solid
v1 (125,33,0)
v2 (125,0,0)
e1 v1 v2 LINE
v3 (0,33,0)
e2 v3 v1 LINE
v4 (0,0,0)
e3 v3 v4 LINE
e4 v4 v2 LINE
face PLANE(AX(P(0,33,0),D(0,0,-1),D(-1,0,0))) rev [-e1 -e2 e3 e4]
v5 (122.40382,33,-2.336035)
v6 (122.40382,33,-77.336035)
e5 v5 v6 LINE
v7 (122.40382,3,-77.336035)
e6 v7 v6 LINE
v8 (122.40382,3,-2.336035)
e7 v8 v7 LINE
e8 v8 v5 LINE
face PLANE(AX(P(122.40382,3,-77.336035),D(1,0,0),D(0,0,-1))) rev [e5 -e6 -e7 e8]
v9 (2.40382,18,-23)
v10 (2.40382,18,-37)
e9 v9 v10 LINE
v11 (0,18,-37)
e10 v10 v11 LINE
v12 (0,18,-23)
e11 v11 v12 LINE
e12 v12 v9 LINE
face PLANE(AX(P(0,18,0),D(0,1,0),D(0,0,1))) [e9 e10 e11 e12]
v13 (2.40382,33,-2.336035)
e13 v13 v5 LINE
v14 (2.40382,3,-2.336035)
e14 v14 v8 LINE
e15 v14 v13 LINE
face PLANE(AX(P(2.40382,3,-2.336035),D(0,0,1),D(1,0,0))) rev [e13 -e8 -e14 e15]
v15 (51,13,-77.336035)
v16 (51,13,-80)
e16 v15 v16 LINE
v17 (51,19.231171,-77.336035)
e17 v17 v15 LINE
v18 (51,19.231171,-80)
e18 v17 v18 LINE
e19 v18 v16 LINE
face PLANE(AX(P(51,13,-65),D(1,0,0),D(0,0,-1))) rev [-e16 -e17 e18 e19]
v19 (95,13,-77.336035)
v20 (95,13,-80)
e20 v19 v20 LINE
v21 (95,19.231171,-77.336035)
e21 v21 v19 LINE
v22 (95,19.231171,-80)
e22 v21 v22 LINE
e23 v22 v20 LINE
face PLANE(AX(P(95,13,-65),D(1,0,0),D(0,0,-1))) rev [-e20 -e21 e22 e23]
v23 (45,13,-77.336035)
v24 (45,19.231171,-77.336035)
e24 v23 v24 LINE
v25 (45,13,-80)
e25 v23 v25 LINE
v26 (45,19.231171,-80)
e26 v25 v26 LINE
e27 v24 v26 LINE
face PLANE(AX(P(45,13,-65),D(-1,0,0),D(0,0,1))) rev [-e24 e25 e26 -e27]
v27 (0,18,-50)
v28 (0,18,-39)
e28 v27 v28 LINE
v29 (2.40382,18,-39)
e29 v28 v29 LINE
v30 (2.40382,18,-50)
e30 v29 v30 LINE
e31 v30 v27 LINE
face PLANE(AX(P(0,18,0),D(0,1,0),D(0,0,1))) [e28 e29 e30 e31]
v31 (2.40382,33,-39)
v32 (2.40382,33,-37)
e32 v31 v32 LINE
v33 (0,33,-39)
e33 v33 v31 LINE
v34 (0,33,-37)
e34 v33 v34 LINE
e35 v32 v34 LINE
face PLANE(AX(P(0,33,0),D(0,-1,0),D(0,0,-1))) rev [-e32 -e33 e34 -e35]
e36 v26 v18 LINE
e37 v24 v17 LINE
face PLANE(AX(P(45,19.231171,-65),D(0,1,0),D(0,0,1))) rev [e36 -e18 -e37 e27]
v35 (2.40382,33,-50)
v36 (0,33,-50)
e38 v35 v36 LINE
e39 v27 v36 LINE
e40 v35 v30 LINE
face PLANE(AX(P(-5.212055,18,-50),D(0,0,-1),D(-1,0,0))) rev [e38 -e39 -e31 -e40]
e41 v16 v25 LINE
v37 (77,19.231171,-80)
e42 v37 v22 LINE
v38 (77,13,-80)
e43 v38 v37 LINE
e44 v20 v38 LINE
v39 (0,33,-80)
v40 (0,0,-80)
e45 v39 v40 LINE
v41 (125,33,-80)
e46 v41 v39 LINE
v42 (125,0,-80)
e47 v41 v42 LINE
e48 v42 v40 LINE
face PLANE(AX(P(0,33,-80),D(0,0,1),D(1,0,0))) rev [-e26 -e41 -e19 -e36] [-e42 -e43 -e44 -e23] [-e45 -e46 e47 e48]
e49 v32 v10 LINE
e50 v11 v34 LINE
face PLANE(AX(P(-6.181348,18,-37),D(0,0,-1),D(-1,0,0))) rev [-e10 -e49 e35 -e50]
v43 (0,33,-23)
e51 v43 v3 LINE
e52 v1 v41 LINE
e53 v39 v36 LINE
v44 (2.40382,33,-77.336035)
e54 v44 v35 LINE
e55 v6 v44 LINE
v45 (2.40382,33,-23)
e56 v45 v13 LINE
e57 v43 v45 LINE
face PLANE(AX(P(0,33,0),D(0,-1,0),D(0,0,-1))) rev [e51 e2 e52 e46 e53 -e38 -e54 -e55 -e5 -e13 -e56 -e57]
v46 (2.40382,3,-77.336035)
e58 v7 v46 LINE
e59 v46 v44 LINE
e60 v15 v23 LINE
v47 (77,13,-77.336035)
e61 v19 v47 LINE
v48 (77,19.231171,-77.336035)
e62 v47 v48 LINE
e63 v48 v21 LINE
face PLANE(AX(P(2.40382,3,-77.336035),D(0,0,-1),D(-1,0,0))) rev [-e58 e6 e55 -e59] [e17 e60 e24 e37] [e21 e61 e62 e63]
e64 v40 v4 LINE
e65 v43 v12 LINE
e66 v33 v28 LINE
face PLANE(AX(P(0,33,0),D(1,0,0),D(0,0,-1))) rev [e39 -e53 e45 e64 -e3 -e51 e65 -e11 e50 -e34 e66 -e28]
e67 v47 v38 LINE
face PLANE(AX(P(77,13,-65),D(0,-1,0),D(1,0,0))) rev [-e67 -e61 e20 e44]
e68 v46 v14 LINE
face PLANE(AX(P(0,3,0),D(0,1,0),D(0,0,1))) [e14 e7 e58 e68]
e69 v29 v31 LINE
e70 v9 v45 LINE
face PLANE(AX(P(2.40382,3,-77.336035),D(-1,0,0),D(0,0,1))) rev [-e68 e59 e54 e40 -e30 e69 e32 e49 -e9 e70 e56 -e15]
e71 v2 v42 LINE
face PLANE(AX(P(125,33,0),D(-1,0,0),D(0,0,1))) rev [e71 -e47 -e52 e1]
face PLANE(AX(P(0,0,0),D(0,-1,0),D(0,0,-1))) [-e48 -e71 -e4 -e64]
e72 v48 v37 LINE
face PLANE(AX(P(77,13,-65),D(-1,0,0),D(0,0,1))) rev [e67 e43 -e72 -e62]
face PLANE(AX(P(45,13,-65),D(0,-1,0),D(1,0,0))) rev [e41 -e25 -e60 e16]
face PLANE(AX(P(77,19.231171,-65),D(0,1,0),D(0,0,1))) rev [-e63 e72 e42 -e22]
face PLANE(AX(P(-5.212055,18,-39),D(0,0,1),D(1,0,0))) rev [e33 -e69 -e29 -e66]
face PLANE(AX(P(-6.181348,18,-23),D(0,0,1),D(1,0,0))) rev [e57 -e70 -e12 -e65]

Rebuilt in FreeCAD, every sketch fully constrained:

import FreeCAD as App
import Part
import Sketcher

V = App.Vector
Q = App.Units.Quantity

doc = App.newDocument("Part")
body = doc.addObject("PartDesign::Body", "Body")

# Sketch on XZ plane
sketch1 = body.newObject("Sketcher::SketchObject", "Sketch")
sketch1.AttachmentSupport = (doc.getObject("XZ_Plane"), [""])
sketch1.MapMode = "FlatFace"
sketch1.addGeometry([
    Part.LineSegment(V(0, -80, 0), V(0, 0, 0)),
    Part.LineSegment(V(0, 0, 0), V(125, 0, 0)),
    Part.LineSegment(V(125, 0, 0), V(125, -80, 0)),
    Part.LineSegment(V(125, -80, 0), V(0, -80, 0)),
], False)
sketch1.addConstraint([
    Sketcher.Constraint("Coincident", 0, 2, 1, 1),
    Sketcher.Constraint("Coincident", 1, 2, 2, 1),
    Sketcher.Constraint("Coincident", 2, 2, 3, 1),
    Sketcher.Constraint("Coincident", 3, 2, 0, 1),
    Sketcher.Constraint("Vertical", 0),
    Sketcher.Constraint("Horizontal", 1),
    Sketcher.Constraint("Vertical", 2),
    Sketcher.Constraint("Horizontal", 3),
    Sketcher.Constraint("Coincident", 0, 2, -1, 1),
    Sketcher.Constraint("DistanceX", 1, 1, 1, 2, Q("125 mm")),
    Sketcher.Constraint("DistanceY", 0, 1, 0, 2, Q("80 mm")),
])
pad1 = body.newObject("PartDesign::Pad", "Pad")
pad1.Profile = sketch1
pad1.Length = 33
pad1.Reversed = True

# Sketch on XZ plane
sketch2 = body.newObject("Sketcher::SketchObject", "Sketch001")
sketch2.AttachmentSupport = (doc.getObject("XZ_Plane"), [""])
sketch2.MapMode = "FlatFace"
sketch2.AttachmentOffset = App.Placement(V(0, 0, -33), App.Rotation())
sketch2.addGeometry([
    Part.LineSegment(V(2, -77, 0), V(2, -2, 0)),
    Part.LineSegment(V(2, -2, 0), V(122, -2, 0)),
    Part.LineSegment(V(122, -2, 0), V(122, -77, 0)),
    Part.LineSegment(V(122, -77, 0), V(2, -77, 0)),
], False)
sketch2.addConstraint([
    Sketcher.Constraint("Coincident", 0, 2, 1, 1),
    Sketcher.Constraint("Coincident", 1, 2, 2, 1),
    Sketcher.Constraint("Coincident", 2, 2, 3, 1),
    Sketcher.Constraint("Coincident", 3, 2, 0, 1),
    Sketcher.Constraint("Vertical", 0),
    Sketcher.Constraint("Horizontal", 1),
    Sketcher.Constraint("Vertical", 2),
    Sketcher.Constraint("Horizontal", 3),
    Sketcher.Constraint("DistanceX", 1, 1, 1, 2, Q("120 mm")),
    Sketcher.Constraint("DistanceY", 0, 1, 0, 2, Q("75 mm")),
    Sketcher.Constraint("DistanceX", -1, 1, 0, 2, Q("2.40382 mm")),
    Sketcher.Constraint("DistanceY", 0, 2, -1, 1, Q("2.336035 mm")),
])
pocket1 = body.newObject("PartDesign::Pocket", "Pocket")
pocket1.Profile = sketch2
pocket1.Length = 30
pocket1.Reversed = True

# Sketch on XZ plane
sketch3 = body.newObject("Sketcher::SketchObject", "Sketch002")
sketch3.AttachmentSupport = (doc.getObject("XZ_Plane"), [""])
sketch3.MapMode = "FlatFace"
sketch3.AttachmentOffset = App.Placement(V(0, 0, -33), App.Rotation())
sketch3.addGeometry([
    Part.LineSegment(V(-6, -37, 0), V(-6, -23, 0)),  # 0
    Part.LineSegment(V(-6, -23, 0), V(8, -23, 0)),  # 1
    Part.LineSegment(V(8, -23, 0), V(8, -37, 0)),  # 2
    Part.LineSegment(V(8, -37, 0), V(-6, -37, 0)),  # 3
    Part.LineSegment(V(-5, -50, 0), V(-5, -39, 0)),  # 4
    Part.LineSegment(V(-5, -39, 0), V(8, -39, 0)),  # 5
    Part.LineSegment(V(8, -39, 0), V(8, -50, 0)),  # 6
    Part.LineSegment(V(8, -50, 0), V(-5, -50, 0)),  # 7
], False)
sketch3.addConstraint([
    Sketcher.Constraint("Coincident", 0, 2, 1, 1),
    Sketcher.Constraint("Coincident", 1, 2, 2, 1),
    Sketcher.Constraint("Coincident", 2, 2, 3, 1),
    Sketcher.Constraint("Coincident", 3, 2, 0, 1),
    Sketcher.Constraint("Coincident", 4, 2, 5, 1),
    Sketcher.Constraint("Coincident", 5, 2, 6, 1),
    Sketcher.Constraint("Coincident", 6, 2, 7, 1),
    Sketcher.Constraint("Coincident", 7, 2, 4, 1),
    Sketcher.Constraint("Vertical", 0),
    Sketcher.Constraint("Horizontal", 1),
    Sketcher.Constraint("Vertical", 2),
    Sketcher.Constraint("Horizontal", 3),
    Sketcher.Constraint("Vertical", 4),
    Sketcher.Constraint("Horizontal", 5),
    Sketcher.Constraint("Vertical", 6),
    Sketcher.Constraint("Horizontal", 7),
    Sketcher.Constraint("Vertical", 2, 2, 5, 2),
    Sketcher.Constraint("DistanceY", 0, 1, 0, 2, Q("14 mm")),
    Sketcher.Constraint("DistanceY", 4, 1, 4, 2, Q("11 mm")),
    Sketcher.Constraint("DistanceY", 0, 2, -1, 1, Q("23 mm")),
    Sketcher.Constraint("DistanceY", 4, 2, -1, 1, Q("39 mm")),
    Sketcher.Constraint("DistanceX", 1, 1, 1, 2, Q("14.123987 mm")),
    Sketcher.Constraint("DistanceX", 5, 1, 5, 2, Q("13.154694 mm")),
    Sketcher.Constraint("DistanceX", 0, 2, -1, 1, Q("6.181348 mm")),
])
pocket2 = body.newObject("PartDesign::Pocket", "Pocket001")
pocket2.Profile = sketch3
pocket2.Length = 15
pocket2.Reversed = True

# Sketch on XY plane
sketch4 = body.newObject("Sketcher::SketchObject", "Sketch003")
sketch4.AttachmentSupport = (doc.getObject("XY_Plane"), [""])
sketch4.MapMode = "FlatFace"
sketch4.AttachmentOffset = App.Placement(V(0, 0, -80), App.Rotation())
sketch4.addGeometry([
    Part.LineSegment(V(51, 19, 0), V(51, 13, 0)),  # 0
    Part.LineSegment(V(51, 13, 0), V(45, 13, 0)),  # 1
    Part.LineSegment(V(45, 13, 0), V(45, 19, 0)),  # 2
    Part.LineSegment(V(45, 19, 0), V(51, 19, 0)),  # 3
    Part.LineSegment(V(95, 19, 0), V(95, 13, 0)),  # 4
    Part.LineSegment(V(95, 13, 0), V(77, 13, 0)),  # 5
    Part.LineSegment(V(77, 13, 0), V(77, 19, 0)),  # 6
    Part.LineSegment(V(77, 19, 0), V(95, 19, 0)),  # 7
], False)
sketch4.addConstraint([
    Sketcher.Constraint("Coincident", 0, 2, 1, 1),
    Sketcher.Constraint("Coincident", 1, 2, 2, 1),
    Sketcher.Constraint("Coincident", 2, 2, 3, 1),
    Sketcher.Constraint("Coincident", 3, 2, 0, 1),
    Sketcher.Constraint("Coincident", 4, 2, 5, 1),
    Sketcher.Constraint("Coincident", 5, 2, 6, 1),
    Sketcher.Constraint("Coincident", 6, 2, 7, 1),
    Sketcher.Constraint("Coincident", 7, 2, 4, 1),
    Sketcher.Constraint("Vertical", 0),
    Sketcher.Constraint("Horizontal", 1),
    Sketcher.Constraint("Vertical", 2),
    Sketcher.Constraint("Horizontal", 3),
    Sketcher.Constraint("Vertical", 4),
    Sketcher.Constraint("Horizontal", 5),
    Sketcher.Constraint("Vertical", 6),
    Sketcher.Constraint("Horizontal", 7),
    Sketcher.Constraint("Horizontal", 1, 2, 4, 2),
    Sketcher.Constraint("Horizontal", 3, 2, 6, 2),
    Sketcher.Constraint("DistanceX", 1, 2, 1, 1, Q("6 mm")),
    Sketcher.Constraint("DistanceX", 5, 2, 5, 1, Q("18 mm")),
    Sketcher.Constraint("DistanceX", -1, 1, 0, 2, Q("51 mm")),
    Sketcher.Constraint("DistanceY", -1, 1, 0, 2, Q("13 mm")),
    Sketcher.Constraint("DistanceX", -1, 1, 4, 2, Q("95 mm")),
    Sketcher.Constraint("DistanceY", 0, 2, 0, 1, Q("6.231171 mm")),
])
pocket3 = body.newObject("PartDesign::Pocket", "Pocket002")
pocket3.Profile = sketch4
pocket3.Length = 15
pocket3.Reversed = True

doc.recompute()
